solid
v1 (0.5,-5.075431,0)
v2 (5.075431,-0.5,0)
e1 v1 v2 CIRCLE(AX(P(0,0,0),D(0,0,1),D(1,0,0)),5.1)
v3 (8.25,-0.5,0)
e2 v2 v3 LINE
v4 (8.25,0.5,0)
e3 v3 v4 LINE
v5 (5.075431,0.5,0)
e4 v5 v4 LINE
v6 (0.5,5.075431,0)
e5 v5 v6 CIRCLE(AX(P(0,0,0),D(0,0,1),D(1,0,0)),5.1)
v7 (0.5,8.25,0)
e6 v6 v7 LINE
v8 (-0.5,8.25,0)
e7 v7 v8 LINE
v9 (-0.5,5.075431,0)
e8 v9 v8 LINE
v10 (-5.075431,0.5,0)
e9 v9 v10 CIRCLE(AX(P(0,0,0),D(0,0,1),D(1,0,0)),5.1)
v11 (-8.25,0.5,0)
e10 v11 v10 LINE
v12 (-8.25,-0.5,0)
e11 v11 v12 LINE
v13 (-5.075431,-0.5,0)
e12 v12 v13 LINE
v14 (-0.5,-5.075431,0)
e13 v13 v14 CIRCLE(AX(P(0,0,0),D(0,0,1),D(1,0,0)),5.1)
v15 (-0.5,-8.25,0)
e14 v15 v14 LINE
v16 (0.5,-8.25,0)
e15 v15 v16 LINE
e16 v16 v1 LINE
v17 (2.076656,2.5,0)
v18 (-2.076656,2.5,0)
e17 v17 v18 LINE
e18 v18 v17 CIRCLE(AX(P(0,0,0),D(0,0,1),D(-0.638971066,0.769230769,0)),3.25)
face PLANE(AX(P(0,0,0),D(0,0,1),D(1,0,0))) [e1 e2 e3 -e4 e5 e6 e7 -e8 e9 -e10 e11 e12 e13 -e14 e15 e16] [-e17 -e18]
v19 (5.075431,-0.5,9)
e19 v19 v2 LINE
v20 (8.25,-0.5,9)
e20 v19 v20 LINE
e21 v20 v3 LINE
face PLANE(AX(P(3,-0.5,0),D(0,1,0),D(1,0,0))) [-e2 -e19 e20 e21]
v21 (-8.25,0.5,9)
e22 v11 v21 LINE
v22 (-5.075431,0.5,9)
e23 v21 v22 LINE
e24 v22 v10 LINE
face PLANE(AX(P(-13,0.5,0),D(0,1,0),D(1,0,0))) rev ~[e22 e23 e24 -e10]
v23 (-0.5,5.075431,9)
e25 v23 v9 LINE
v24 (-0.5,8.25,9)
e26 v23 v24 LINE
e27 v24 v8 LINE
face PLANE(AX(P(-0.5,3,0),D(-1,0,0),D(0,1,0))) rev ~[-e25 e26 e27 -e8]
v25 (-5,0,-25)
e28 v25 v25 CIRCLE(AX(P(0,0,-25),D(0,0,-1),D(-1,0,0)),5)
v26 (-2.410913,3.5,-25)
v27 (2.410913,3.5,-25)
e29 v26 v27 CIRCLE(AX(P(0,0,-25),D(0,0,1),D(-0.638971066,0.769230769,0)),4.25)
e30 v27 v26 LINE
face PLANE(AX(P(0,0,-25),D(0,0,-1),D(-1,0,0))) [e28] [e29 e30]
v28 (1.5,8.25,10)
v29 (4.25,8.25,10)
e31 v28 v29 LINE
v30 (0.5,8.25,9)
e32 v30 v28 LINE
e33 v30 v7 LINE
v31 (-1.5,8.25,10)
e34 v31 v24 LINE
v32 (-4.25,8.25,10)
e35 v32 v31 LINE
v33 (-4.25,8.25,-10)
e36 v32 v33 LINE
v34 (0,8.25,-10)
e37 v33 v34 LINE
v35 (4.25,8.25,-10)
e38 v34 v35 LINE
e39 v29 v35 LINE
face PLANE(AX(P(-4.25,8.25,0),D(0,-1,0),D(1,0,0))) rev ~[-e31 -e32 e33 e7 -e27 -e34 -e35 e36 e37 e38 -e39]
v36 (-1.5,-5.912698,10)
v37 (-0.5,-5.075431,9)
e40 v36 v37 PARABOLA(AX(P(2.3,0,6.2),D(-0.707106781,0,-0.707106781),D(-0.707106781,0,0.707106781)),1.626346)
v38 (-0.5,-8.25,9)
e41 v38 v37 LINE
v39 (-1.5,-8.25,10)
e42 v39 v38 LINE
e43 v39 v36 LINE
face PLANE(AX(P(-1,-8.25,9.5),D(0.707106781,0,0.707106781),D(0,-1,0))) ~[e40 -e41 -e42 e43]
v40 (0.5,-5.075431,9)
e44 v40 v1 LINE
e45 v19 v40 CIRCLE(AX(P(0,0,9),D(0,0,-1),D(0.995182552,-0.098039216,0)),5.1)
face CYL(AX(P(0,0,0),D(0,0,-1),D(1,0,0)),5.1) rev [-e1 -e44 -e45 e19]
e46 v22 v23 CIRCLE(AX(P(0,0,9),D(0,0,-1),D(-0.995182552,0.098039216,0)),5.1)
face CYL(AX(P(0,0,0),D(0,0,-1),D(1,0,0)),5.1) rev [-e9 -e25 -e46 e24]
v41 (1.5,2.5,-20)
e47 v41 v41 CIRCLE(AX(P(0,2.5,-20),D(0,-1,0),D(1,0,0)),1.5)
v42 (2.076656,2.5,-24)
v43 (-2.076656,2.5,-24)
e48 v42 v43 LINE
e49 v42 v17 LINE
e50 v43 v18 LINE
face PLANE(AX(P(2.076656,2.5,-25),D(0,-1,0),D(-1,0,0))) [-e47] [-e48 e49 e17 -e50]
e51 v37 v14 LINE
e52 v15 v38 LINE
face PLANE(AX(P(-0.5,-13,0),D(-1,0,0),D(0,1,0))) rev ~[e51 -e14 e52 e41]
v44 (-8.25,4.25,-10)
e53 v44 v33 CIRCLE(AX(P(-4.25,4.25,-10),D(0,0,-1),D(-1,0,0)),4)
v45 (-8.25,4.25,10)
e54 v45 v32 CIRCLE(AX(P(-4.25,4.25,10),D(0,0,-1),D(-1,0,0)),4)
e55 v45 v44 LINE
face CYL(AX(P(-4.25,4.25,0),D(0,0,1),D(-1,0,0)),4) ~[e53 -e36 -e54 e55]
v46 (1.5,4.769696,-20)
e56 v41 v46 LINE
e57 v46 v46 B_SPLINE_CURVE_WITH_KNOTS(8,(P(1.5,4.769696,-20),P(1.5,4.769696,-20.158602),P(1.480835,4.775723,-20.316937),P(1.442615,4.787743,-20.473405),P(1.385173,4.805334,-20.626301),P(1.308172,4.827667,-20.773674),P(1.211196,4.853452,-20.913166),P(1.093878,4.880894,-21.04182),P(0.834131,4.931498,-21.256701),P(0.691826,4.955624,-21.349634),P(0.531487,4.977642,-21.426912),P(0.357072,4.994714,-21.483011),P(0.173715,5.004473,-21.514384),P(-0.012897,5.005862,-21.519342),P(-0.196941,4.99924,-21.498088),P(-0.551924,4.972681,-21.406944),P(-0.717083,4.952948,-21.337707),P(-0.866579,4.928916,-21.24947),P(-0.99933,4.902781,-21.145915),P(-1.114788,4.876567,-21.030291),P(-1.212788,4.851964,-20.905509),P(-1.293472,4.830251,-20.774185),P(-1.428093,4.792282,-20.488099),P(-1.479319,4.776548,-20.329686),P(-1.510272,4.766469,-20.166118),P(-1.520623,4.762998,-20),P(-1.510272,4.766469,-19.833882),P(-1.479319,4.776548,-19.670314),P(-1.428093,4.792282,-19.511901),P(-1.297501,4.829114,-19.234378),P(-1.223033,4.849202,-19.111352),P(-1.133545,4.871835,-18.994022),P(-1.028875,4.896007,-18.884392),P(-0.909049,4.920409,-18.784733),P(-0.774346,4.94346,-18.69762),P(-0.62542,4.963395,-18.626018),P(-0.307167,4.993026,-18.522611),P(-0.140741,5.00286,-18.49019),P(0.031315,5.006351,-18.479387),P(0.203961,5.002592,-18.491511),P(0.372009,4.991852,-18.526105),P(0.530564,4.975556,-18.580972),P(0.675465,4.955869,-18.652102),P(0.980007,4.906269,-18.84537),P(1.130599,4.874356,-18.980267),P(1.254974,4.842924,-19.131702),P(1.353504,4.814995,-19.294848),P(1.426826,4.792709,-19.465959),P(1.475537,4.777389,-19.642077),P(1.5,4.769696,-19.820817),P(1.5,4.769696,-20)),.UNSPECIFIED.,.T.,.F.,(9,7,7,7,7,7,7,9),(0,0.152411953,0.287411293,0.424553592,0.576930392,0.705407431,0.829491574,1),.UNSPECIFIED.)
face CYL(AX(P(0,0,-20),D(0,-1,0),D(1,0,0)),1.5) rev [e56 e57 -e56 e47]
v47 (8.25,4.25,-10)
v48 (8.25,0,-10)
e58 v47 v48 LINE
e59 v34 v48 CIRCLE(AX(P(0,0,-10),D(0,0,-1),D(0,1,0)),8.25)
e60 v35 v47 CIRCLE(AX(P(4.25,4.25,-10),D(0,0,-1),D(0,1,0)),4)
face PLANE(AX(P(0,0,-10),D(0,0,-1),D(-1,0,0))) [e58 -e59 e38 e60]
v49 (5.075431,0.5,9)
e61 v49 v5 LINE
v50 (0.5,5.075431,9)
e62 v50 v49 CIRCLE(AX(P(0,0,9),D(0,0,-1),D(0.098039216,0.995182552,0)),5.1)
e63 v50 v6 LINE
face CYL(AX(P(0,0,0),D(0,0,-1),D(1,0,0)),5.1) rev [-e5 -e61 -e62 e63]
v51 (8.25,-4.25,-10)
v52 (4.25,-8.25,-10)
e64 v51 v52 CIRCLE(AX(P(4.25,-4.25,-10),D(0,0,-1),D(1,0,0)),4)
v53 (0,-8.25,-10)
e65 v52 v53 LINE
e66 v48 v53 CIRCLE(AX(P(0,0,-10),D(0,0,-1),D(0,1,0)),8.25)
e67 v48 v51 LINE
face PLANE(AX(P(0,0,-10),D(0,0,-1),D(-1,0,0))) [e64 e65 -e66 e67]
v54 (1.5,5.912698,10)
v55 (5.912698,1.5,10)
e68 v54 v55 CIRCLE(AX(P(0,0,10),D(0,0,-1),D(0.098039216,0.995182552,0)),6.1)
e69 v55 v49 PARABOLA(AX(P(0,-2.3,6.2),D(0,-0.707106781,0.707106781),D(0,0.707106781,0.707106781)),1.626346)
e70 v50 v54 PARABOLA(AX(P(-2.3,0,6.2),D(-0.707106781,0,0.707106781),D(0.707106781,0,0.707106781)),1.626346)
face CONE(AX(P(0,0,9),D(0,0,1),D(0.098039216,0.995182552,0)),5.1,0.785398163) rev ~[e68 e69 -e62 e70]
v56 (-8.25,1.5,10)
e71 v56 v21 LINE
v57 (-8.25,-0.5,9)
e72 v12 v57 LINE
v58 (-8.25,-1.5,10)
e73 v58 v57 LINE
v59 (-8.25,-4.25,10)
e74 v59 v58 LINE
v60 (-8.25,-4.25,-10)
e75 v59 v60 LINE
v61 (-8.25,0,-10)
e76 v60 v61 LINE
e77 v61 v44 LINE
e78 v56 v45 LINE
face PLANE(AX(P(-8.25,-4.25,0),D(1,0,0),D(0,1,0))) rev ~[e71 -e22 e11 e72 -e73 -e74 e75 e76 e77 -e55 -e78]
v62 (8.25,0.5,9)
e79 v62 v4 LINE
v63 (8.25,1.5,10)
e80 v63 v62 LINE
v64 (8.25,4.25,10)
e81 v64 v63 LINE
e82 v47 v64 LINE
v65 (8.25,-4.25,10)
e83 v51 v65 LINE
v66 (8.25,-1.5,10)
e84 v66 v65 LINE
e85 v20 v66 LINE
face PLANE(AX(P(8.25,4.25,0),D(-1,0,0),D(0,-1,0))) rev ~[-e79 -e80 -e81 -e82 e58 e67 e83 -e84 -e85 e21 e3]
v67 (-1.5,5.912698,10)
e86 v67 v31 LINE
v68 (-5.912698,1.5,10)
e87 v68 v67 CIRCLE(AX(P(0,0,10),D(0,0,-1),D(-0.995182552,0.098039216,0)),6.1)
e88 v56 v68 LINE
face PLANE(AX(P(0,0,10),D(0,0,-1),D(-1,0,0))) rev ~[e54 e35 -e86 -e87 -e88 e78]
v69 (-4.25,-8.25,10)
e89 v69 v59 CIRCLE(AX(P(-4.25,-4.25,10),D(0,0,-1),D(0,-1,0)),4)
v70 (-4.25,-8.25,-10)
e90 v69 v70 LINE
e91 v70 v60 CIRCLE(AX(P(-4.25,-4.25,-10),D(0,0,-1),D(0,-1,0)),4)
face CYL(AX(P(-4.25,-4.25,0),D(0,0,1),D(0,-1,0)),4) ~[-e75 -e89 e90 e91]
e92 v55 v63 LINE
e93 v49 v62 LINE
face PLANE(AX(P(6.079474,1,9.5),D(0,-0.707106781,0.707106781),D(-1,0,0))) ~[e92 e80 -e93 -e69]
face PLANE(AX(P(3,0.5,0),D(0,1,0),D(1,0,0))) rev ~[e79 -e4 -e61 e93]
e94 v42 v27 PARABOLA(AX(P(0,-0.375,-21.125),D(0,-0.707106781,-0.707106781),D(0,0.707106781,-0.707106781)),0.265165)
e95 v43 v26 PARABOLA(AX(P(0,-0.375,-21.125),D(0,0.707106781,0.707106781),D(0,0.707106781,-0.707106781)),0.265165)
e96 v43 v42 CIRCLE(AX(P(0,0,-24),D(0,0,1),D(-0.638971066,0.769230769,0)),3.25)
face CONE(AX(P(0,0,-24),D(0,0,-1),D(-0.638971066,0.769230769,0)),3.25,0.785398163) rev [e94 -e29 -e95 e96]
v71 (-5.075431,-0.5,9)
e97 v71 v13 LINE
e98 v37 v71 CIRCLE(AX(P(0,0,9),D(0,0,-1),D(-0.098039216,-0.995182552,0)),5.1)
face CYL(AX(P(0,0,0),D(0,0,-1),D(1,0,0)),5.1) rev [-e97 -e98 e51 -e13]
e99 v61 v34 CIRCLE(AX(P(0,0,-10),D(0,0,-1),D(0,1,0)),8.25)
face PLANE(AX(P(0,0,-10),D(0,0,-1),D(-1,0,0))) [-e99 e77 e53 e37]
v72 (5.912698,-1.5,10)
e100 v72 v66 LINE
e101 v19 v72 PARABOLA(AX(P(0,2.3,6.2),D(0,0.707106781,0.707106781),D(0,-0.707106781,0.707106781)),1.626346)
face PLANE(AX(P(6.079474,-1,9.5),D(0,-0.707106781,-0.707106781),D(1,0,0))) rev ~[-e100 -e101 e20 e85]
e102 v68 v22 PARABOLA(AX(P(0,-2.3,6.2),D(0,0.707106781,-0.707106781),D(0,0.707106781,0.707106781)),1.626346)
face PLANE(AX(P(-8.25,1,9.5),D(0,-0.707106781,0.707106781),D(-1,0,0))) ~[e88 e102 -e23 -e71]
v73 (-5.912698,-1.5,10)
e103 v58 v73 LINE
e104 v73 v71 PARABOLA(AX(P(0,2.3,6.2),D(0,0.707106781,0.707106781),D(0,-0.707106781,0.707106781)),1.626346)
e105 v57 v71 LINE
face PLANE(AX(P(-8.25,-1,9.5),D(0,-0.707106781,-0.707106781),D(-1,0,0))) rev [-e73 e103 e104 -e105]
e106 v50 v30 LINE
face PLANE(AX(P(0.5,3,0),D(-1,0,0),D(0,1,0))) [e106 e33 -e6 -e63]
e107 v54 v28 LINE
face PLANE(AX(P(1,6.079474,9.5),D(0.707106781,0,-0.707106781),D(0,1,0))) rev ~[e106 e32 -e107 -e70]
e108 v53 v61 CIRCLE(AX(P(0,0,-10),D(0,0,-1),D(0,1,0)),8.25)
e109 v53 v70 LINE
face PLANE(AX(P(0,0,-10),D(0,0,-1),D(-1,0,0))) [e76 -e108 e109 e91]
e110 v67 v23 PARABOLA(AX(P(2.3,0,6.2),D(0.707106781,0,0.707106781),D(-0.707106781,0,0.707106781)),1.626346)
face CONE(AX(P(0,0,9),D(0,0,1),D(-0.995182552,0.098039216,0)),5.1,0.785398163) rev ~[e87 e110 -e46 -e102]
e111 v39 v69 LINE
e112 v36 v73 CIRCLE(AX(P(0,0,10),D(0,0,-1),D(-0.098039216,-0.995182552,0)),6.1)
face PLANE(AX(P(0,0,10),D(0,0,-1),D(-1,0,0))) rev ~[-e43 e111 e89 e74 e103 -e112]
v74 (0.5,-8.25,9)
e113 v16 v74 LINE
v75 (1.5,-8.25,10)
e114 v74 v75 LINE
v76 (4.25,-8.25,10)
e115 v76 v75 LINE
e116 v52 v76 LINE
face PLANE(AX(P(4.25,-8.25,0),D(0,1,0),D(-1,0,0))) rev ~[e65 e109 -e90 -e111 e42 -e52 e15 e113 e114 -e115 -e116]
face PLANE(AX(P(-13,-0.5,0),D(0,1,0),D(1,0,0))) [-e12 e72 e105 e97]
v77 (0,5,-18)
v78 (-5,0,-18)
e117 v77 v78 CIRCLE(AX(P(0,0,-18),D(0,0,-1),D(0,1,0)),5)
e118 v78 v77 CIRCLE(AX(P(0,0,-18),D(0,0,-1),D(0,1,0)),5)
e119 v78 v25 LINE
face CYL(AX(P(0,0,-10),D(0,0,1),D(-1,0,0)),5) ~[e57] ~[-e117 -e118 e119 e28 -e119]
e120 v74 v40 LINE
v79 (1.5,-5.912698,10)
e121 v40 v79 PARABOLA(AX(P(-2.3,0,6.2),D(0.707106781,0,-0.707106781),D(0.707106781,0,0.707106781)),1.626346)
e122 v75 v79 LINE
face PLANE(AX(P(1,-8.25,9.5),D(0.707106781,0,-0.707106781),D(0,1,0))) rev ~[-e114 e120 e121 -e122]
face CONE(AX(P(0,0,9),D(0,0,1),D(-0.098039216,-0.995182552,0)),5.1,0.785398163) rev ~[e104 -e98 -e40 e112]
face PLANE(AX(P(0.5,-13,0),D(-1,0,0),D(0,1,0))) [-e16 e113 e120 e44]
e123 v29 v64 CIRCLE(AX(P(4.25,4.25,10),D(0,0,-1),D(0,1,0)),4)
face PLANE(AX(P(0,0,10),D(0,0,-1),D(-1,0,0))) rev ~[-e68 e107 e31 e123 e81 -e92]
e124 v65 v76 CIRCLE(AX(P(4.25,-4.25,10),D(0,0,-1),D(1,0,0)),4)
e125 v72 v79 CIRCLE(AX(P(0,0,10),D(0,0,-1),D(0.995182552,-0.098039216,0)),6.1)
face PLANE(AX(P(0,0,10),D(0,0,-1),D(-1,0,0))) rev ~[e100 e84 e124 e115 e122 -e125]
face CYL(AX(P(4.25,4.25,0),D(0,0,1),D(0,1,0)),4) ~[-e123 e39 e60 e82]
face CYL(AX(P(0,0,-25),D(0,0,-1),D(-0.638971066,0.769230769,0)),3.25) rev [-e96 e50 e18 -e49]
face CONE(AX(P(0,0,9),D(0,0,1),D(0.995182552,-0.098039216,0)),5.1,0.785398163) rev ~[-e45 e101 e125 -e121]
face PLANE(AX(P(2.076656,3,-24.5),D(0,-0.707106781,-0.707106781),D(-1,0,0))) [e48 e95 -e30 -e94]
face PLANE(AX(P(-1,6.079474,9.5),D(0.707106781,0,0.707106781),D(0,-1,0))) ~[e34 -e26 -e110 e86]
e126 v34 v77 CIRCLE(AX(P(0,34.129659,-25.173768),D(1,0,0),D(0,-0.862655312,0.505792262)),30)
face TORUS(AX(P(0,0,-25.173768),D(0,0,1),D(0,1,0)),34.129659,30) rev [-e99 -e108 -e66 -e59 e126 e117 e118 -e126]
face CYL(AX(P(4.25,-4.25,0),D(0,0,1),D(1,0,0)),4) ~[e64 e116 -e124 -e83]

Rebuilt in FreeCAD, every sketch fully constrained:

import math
import FreeCAD as App
import Part
import Sketcher
from FreeCAD import Vector
Q = App.Units.Quantity


def edges_at(feature, points):
    """Names of the edges that pass closest to the given points."""
    edges = feature.Shape.Edges
    near = lambda p: min(range(len(edges)), key=lambda i: edges[i].distToShape(Part.Vertex(*p))[0])
    return sorted({f"Edge{near(p) + 1}" for p in points})


def add_polygon(sketch, points):
    """Adds a closed chain of lines whose ends are joined by coincident constraints."""
    first, n = sketch.GeometryCount, len(points)
    for a, b in zip(points, points[1:] + points[:1]):
        sketch.addGeometry(Part.LineSegment(App.Vector(*a, 0), App.Vector(*b, 0)), False)
    for i in range(n):
        sketch.addConstraint(Sketcher.Constraint("Coincident", first + i, 2, first + (i + 1) % n, 1))

doc = App.newDocument("Part")
body = doc.addObject("PartDesign::Body", "Body")

# Sketch on XY plane
sketch1 = body.newObject("Sketcher::SketchObject", "Sketch")
sketch1.AttachmentSupport = (doc.getObject("XY_Plane"), [""])
sketch1.MapMode = "FlatFace"
sketch1.addGeometry([
    Part.LineSegment(Vector(-4.25, -8.25, 0), Vector(4.25, -8.25, 0)),  # 0
    Part.ArcOfCircle(Part.Circle(Vector(4.25, -4.25, 0), Vector(0, 0, 1), 4), math.radians(-90), math.radians(0)),  # 1
    Part.LineSegment(Vector(8.25, -4.25, 0), Vector(8.25, 4.25, 0)),  # 2
    Part.ArcOfCircle(Part.Circle(Vector(4.25, 4.25, 0), Vector(0, 0, 1), 4), math.radians(0), math.radians(90)),  # 3
    Part.LineSegment(Vector(4.25, 8.25, 0), Vector(-4.25, 8.25, 0)),  # 4
    Part.ArcOfCircle(Part.Circle(Vector(-4.25, 4.25, 0), Vector(0, 0, 1), 4), math.radians(90), math.radians(180)),  # 5
    Part.LineSegment(Vector(-8.25, 4.25, 0), Vector(-8.25, -4.25, 0)),  # 6
    Part.ArcOfCircle(Part.Circle(Vector(-4.25, -4.25, 0), Vector(0, 0, 1), 4), math.radians(180), math.radians(270)),  # 7
], False)
sketch1.addConstraint([
    Sketcher.Constraint("Tangent", 0, 2, 1, 1),
    Sketcher.Constraint("Tangent", 1, 2, 2, 1),
    Sketcher.Constraint("Tangent", 2, 2, 3, 1),
    Sketcher.Constraint("Tangent", 3, 2, 4, 1),
    Sketcher.Constraint("Tangent", 4, 2, 5, 1),
    Sketcher.Constraint("Tangent", 5, 2, 6, 1),
    Sketcher.Constraint("Tangent", 6, 2, 7, 1),
    Sketcher.Constraint("Tangent", 7, 2, 0, 1),
    Sketcher.Constraint("Horizontal", 0),
    Sketcher.Constraint("Vertical", 2),
    Sketcher.Constraint("Horizontal", 4),
    Sketcher.Constraint("Vertical", 6),
    Sketcher.Constraint("Equal", 1, 3),
    Sketcher.Constraint("Equal", 3, 5),
    Sketcher.Constraint("Equal", 5, 7),
    Sketcher.Constraint("Symmetric", 1, 3, 5, 3, -1, 1),
    Sketcher.Constraint("Equal", 4, 2),
    Sketcher.Constraint("Radius", 1, Q("4 mm")),
    Sketcher.Constraint("DistanceX", 0, 1, 0, 2, Q("8.5 mm")),
])
pad1 = body.newObject("PartDesign::Pad", "Pad")
pad1.Profile = sketch1
pad1.Length = 20
pad1.Midplane = True

# Sketch on XY plane
sketch2 = body.newObject("Sketcher::SketchObject", "Sketch001")
sketch2.AttachmentSupport = (doc.getObject("XY_Plane"), [""])
sketch2.MapMode = "FlatFace"
sketch2.AttachmentOffset = App.Placement(Vector(0, 0, -10), App.Rotation())
sketch2.addGeometry(Part.Circle(Vector(0, 0, 0), Vector(0, 0, 1), 5), False)
sketch2.addConstraint([
    Sketcher.Constraint("Coincident", 0, 3, -1, 1),
    Sketcher.Constraint("Diameter", 0, Q("10 mm")),
])
pad2 = body.newObject("PartDesign::Pad", "Pad001")
pad2.Profile = sketch2
pad2.Length = 15
pad2.Reversed = True

# Sketch on XY plane
sketch3 = body.newObject("Sketcher::SketchObject", "Sketch002")
sketch3.AttachmentSupport = (doc.getObject("XY_Plane"), [""])
sketch3.MapMode = "FlatFace"
sketch3.AttachmentOffset = App.Placement(Vector(0, 0, -25), App.Rotation())
sketch3.addGeometry([
    Part.LineSegment(Vector(-2.076656, 2.5, 0), Vector(2.076656, 2.5, 0)),
    Part.ArcOfCircle(Part.Circle(Vector(0, 0, 0), Vector(0, 0, 1), 3.25), math.radians(129.715137), math.radians(410.284863)),
], False)
sketch3.addConstraint([
    Sketcher.Constraint("Coincident", 0, 1, 1, 1),
    Sketcher.Constraint("Coincident", 1, 2, 0, 2),
    Sketcher.Constraint("Horizontal", 0),
    Sketcher.Constraint("Coincident", 1, 3, -1, 1),
    Sketcher.Constraint("Radius", 1, Q("3.25 mm")),
    Sketcher.Constraint("DistanceY", -1, 1, 0, 1, Q("2.5 mm")),
])
pocket1 = body.newObject("PartDesign::Pocket", "Pocket")
pocket1.Profile = sketch3
pocket1.Length = 40
pocket1.Reversed = True

# Sketch on XZ plane
sketch4 = body.newObject("Sketcher::SketchObject", "Sketch003")
sketch4.AttachmentSupport = (doc.getObject("XZ_Plane"), [""])
sketch4.MapMode = "FlatFace"
sketch4.addGeometry(Part.Circle(Vector(0, -20, 0), Vector(0, 0, 1), 1.5), False)
sketch4.addConstraint([
    Sketcher.Constraint("PointOnObject", 0, 3, -2),
    Sketcher.Constraint("Diameter", 0, Q("3 mm")),
    Sketcher.Constraint("DistanceY", 0, 3, -1, 1, Q("20 mm")),
])
pocket2 = body.newObject("PartDesign::Pocket", "Pocket001")
pocket2.Profile = sketch4
pocket2.Length = 12
doc.recompute()

chamfer = body.newObject("PartDesign::Chamfer", "Chamfer")
chamfer.Base = (pocket2, edges_at(pocket2, [(0, 2.5, -25), (0, -3.25, -25)]))
chamfer.Size = 1

# Sketch on XY plane
sketch5 = body.newObject("Sketcher::SketchObject", "Sketch004")
sketch5.AttachmentSupport = (doc.getObject("XY_Plane"), [""])
sketch5.MapMode = "FlatFace"
add_polygon(sketch5, [(-0.5, 13), (-0.5, 3), (0.5, 3), (0.5, 13)])  # lines 0-3
add_polygon(sketch5, [(3, 0.5), (3, -0.5), (13, -0.5), (13, 0.5)])  # lines 4-7
add_polygon(sketch5, [(-0.5, -3), (-0.5, -13), (0.5, -13), (0.5, -3)])  # lines 8-11
add_polygon(sketch5, [(-13, 0.5), (-13, -0.5), (-3, -0.5), (-3, 0.5)])  # lines 12-15
sketch5.addConstraint([
    Sketcher.Constraint("Vertical", 0),
    Sketcher.Constraint("Horizontal", 1),
    Sketcher.Constraint("Vertical", 2),
    Sketcher.Constraint("Horizontal", 3),
    Sketcher.Constraint("Vertical", 4),
    Sketcher.Constraint("Horizontal", 5),
    Sketcher.Constraint("Vertical", 6),
    Sketcher.Constraint("Horizontal", 7),
    Sketcher.Constraint("Vertical", 8),
    Sketcher.Constraint("Horizontal", 9),
    Sketcher.Constraint("Vertical", 10),
    Sketcher.Constraint("Horizontal", 11),
    Sketcher.Constraint("Vertical", 12),
    Sketcher.Constraint("Horizontal", 13),
    Sketcher.Constraint("Vertical", 14),
    Sketcher.Constraint("Horizontal", 15),
    Sketcher.Constraint("Symmetric", 2, 2, 8, 2, -1, 1),
    Sketcher.Constraint("Symmetric", 0, 2, 10, 2, -1, 1),
    Sketcher.Constraint("Symmetric", 6, 2, 12, 2, -1, 1),
    Sketcher.Constraint("Symmetric", 4, 2, 14, 2, -1, 1),
    Sketcher.Constraint("Horizontal", 5, 2, 12, 2),
    Sketcher.Constraint("Vertical", 3, 2, 8, 2),
    Sketcher.Constraint("Equal", 15, 0),
    Sketcher.Constraint("Equal", 11, 4),
    Sketcher.Constraint("DistanceX", 1, 1, 1, 2, Q("1 mm")),
    Sketcher.Constraint("DistanceX", 5, 1, 5, 2, Q("10 mm")),
    Sketcher.Constraint("DistanceY", -1, 1, 0, 2, Q("3 mm")),
    Sketcher.Constraint("DistanceX", -1, 1, 4, 2, Q("3 mm")),
])
pocket3 = body.newObject("PartDesign::Pocket", "Pocket002")
pocket3.Profile = sketch5
pocket3.Length = 25
pocket3.Reversed = True

# Sketch on XY plane
sketch6 = body.newObject("Sketcher::SketchObject", "Sketch005")
sketch6.AttachmentSupport = (doc.getObject("XY_Plane"), [""])
sketch6.MapMode = "FlatFace"
sketch6.addGeometry(Part.Circle(Vector(0, 0, 0), Vector(0, 0, 1), 5.1), False)
sketch6.addConstraint([
    Sketcher.Constraint("Coincident", 0, 3, -1, 1),
    Sketcher.Constraint("Diameter", 0, Q("10.2 mm")),
])
pocket4 = body.newObject("PartDesign::Pocket", "Pocket003")
pocket4.Profile = sketch6
pocket4.Length = 25
pocket4.Reversed = True

# Sketch on YZ plane
sketch7 = body.newObject("Sketcher::SketchObject", "Sketch006")
sketch7.AttachmentSupport = (doc.getObject("YZ_Plane"), [""])
sketch7.MapMode = "FlatFace"
sketch7.addGeometry([
    Part.LineSegment(Vector(8.25, -10, 0), Vector(5, -10, 0)),
    Part.LineSegment(Vector(5, -10, 0), Vector(5, -18, 0)),
    Part.ArcOfCircle(Part.Circle(Vector(34.129659, -25.173768, 0), Vector(0, 0, 1), 30), math.radians(149.616041), math.radians(166.165062)),
], False)
sketch7.addConstraint([
    Sketcher.Constraint("Coincident", 0, 2, 1, 1),
    Sketcher.Constraint("Coincident", 1, 2, 2, 2),
    Sketcher.Constraint("Coincident", 2, 1, 0, 1),
    Sketcher.Constraint("Horizontal", 0),
    Sketcher.Constraint("Vertical", 1),
    Sketcher.Constraint("Radius", 2, Q("30 mm")),
    Sketcher.Constraint("DistanceY", 1, 2, 1, 1, Q("8 mm")),
    Sketcher.Constraint("DistanceX", -1, 1, 0, 2, Q("5 mm")),
    Sketcher.Constraint("DistanceY", 0, 2, -1, 1, Q("10 mm")),
    Sketcher.Constraint("DistanceX", 0, 2, 0, 1, Q("3.25 mm")),
])
revolution = body.newObject("PartDesign::Revolution", "Revolution")
revolution.Profile = sketch7
revolution.ReferenceAxis = (sketch7, ["V_Axis"])
revolution.Angle = 360
doc.recompute()

chamfer2 = body.newObject("PartDesign::Chamfer", "Chamfer001")
chamfer2.Base = (revolution, edges_at(revolution, [
    (-3.606, -3.606, 10),
    (3.606, -3.606, 10),
    (3.606, 3.606, 10),
    (-3.606, 3.606, 10),
]))
chamfer2.Size = 1
doc.recompute()

chamfer3 = body.newObject("PartDesign::Chamfer", "Chamfer002")
chamfer3.Base = (chamfer2, edges_at(chamfer2, [
    (0.5, 7.165, 10),
    (-0.5, 7.165, 10),
    (-7.165, 0.5, 10),
    (-7.165, -0.5, 10),
    (-0.5, -7.165, 10),
    (0.5, -7.165, 10),
    (7.165, -0.5, 10),
    (7.165, 0.5, 10),
]))
chamfer3.Size = 1

doc.recompute()
